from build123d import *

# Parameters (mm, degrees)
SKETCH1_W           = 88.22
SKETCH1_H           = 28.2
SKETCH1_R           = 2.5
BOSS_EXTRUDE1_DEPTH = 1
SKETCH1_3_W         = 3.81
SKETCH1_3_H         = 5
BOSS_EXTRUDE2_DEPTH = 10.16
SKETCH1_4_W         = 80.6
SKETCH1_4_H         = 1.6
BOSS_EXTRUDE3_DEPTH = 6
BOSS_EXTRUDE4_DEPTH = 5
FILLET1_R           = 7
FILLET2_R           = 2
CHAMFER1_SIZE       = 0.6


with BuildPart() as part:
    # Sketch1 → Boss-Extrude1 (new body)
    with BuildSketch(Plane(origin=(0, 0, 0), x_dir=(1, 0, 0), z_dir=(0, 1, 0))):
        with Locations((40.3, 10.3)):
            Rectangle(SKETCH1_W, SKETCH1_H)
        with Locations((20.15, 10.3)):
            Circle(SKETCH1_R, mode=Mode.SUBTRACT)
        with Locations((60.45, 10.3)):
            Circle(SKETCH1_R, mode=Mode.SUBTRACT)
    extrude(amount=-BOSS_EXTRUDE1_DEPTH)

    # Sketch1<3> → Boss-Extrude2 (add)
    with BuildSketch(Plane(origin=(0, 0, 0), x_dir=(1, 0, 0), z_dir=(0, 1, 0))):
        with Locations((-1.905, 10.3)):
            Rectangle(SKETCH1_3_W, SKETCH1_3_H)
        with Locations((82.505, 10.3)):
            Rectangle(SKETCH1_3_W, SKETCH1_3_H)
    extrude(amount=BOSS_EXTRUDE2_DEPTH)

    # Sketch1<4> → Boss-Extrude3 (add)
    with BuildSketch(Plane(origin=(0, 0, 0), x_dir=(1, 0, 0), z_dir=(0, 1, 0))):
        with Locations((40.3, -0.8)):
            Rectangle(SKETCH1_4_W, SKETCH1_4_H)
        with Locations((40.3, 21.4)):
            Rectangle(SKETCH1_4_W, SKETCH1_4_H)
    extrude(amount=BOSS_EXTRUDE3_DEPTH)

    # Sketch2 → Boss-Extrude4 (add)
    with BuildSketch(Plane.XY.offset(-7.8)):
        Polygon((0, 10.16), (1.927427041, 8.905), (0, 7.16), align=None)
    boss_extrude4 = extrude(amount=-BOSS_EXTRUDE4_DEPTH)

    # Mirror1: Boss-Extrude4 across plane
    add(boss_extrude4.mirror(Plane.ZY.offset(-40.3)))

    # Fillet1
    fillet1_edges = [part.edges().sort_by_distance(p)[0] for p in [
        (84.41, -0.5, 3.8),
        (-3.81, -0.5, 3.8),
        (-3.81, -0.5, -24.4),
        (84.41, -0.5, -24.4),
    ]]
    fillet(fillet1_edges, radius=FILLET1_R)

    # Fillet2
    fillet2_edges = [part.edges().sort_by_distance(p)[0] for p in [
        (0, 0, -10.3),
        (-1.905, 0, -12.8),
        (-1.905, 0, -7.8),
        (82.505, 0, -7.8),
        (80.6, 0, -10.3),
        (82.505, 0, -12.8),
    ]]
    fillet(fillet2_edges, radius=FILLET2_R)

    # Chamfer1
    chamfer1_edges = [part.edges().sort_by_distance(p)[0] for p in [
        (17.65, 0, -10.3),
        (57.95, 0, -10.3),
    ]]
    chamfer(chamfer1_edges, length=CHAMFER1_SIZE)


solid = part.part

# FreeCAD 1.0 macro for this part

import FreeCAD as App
import Part
import Sketcher
from FreeCAD import Vector
Q = App.Units.Quantity


def edges_at(feature, points):
    """Names of the edges that pass closest to the given points."""
    edges = feature.Shape.Edges
    near = lambda p: min(range(len(edges)), key=lambda i: edges[i].distToShape(Part.Vertex(*p))[0])
    return sorted({f"Edge{near(p) + 1}" for p in points})

doc = App.newDocument("Part")
params = doc.addObject("Spreadsheet::Sheet", "Params")
for row, (alias, value) in enumerate([
    ("sketch1_diameter", "5 mm"),
    ("sketch1_height", "28.2 mm"),
    ("sketch1_width", "88.22 mm"),
    ("pad1_length", "1 mm"),
    ("sketch2_height", "5 mm"),
    ("sketch2_width", "3.81 mm"),
    ("pad2_length", "10.16 mm"),
    ("sketch3_width", "80.6 mm"),
    ("sketch3_height", "1.6 mm"),
    ("pad3_length", "6 mm"),
    ("sketch4_height", "3 mm"),
    ("sketch4_length", "2.3 mm"),
    ("sketch4_length2", "2.6 mm"),
    ("pad4_length", "5 mm"),
    ("fillet_radius", "7 mm"),
    ("fillet2_radius", "2 mm"),
    ("chamfer_size", "0.6 mm"),
], start=1):
    params.set(f"A{row}", alias)
    params.set(f"B{row}", "=" + value)
    params.setAlias(f"B{row}", alias)

body = doc.addObject("PartDesign::Body", "Body")

sketch1 = body.newObject("Sketcher::SketchObject", "Sketch")
sketch1.AttachmentSupport = (doc.getObject("XZ_Plane"), [""])
sketch1.MapMode = "FlatFace"
sketch1.addGeometry(Part.LineSegment(Vector(-3.8, -24.4, 0), Vector(-3.8, 3.8, 0)), False)
sketch1.addGeometry(Part.LineSegment(Vector(-3.8, 3.8, 0), Vector(84.4, 3.8, 0)), False)
sketch1.addGeometry(Part.LineSegment(Vector(84.4, 3.8, 0), Vector(84.4, -24.4, 0)), False)
sketch1.addGeometry(Part.LineSegment(Vector(84.4, -24.4, 0), Vector(-3.8, -24.4, 0)), False)
sketch1.addGeometry(Part.Circle(Vector(20.1, -10.3, 0), Vector(0, 0, 1), 2.5), False)
sketch1.addGeometry(Part.Circle(Vector(60.5, -10.3, 0), Vector(0, 0, 1), 2.5), False)
sketch1.addConstraint(Sketcher.Constraint("Coincident", 0, 2, 1, 1))
sketch1.addConstraint(Sketcher.Constraint("Coincident", 1, 2, 2, 1))
sketch1.addConstraint(Sketcher.Constraint("Coincident", 2, 2, 3, 1))
sketch1.addConstraint(Sketcher.Constraint("Coincident", 3, 2, 0, 1))
sketch1.addConstraint(Sketcher.Constraint("Vertical", 0))
sketch1.addConstraint(Sketcher.Constraint("Horizontal", 1))
sketch1.addConstraint(Sketcher.Constraint("Vertical", 2))
sketch1.addConstraint(Sketcher.Constraint("Horizontal", 3))
sketch1.addConstraint(Sketcher.Constraint("Equal", 4, 5))
sketch1.addConstraint(Sketcher.Constraint("Horizontal", 4, 3, 5, 3))
sketch1.addConstraint(Sketcher.Constraint("Diameter", 4, Q("5 mm")))
sketch1.addConstraint(Sketcher.Constraint("DistanceY", 0, 1, 0, 2, Q("28.2 mm")))
sketch1.addConstraint(Sketcher.Constraint("DistanceX", 1, 1, 1, 2, Q("88.22 mm")))
sketch1.addConstraint(Sketcher.Constraint("DistanceY", 4, 3, -1, 1, Q("10.3 mm")))
sketch1.addConstraint(Sketcher.Constraint("DistanceY", -1, 1, 0, 2, Q("3.8 mm")))
sketch1.addConstraint(Sketcher.Constraint("DistanceX", 4, 3, 5, 3, Q("40.3 mm")))
sketch1.addConstraint(Sketcher.Constraint("DistanceX", -1, 1, 4, 3, Q("20.15 mm")))
sketch1.addConstraint(Sketcher.Constraint("DistanceX", 0, 2, -1, 1, Q("3.81 mm")))
sketch1.setExpression("Constraints[10]", "Params.sketch1_diameter")
sketch1.setExpression("Constraints[11]", "Params.sketch1_height")
sketch1.setExpression("Constraints[12]", "Params.sketch1_width")
pad1 = body.newObject("PartDesign::Pad", "Pad")
pad1.Profile = sketch1
pad1.setExpression("Length", "Params.pad1_length")

sketch2 = body.newObject("Sketcher::SketchObject", "Sketch001")
sketch2.AttachmentSupport = (doc.getObject("XZ_Plane"), [""])
sketch2.MapMode = "FlatFace"
sketch2.addGeometry(Part.LineSegment(Vector(-3.8, -12.8, 0), Vector(-3.8, -7.8, 0)), False)
sketch2.addGeometry(Part.LineSegment(Vector(-3.8, -7.8, 0), Vector(0, -7.8, 0)), False)
sketch2.addGeometry(Part.LineSegment(Vector(0, -7.8, 0), Vector(0, -12.8, 0)), False)
sketch2.addGeometry(Part.LineSegment(Vector(0, -12.8, 0), Vector(-3.8, -12.8, 0)), False)
sketch2.addGeometry(Part.LineSegment(Vector(80.6, -12.8, 0), Vector(80.6, -7.8, 0)), False)
sketch2.addGeometry(Part.LineSegment(Vector(80.6, -7.8, 0), Vector(84.4, -7.8, 0)), False)
sketch2.addGeometry(Part.LineSegment(Vector(84.4, -7.8, 0), Vector(84.4, -12.8, 0)), False)
sketch2.addGeometry(Part.LineSegment(Vector(84.4, -12.8, 0), Vector(80.6, -12.8, 0)), False)
sketch2.addConstraint(Sketcher.Constraint("Coincident", 0, 2, 1, 1))
sketch2.addConstraint(Sketcher.Constraint("Coincident", 1, 2, 2, 1))
sketch2.addConstraint(Sketcher.Constraint("Coincident", 2, 2, 3, 1))
sketch2.addConstraint(Sketcher.Constraint("Coincident", 3, 2, 0, 1))
sketch2.addConstraint(Sketcher.Constraint("Coincident", 4, 2, 5, 1))
sketch2.addConstraint(Sketcher.Constraint("Coincident", 5, 2, 6, 1))
sketch2.addConstraint(Sketcher.Constraint("Coincident", 6, 2, 7, 1))
sketch2.addConstraint(Sketcher.Constraint("Coincident", 7, 2, 4, 1))
sketch2.addConstraint(Sketcher.Constraint("Vertical", 0))
sketch2.addConstraint(Sketcher.Constraint("Horizontal", 1))
sketch2.addConstraint(Sketcher.Constraint("Vertical", 2))
sketch2.addConstraint(Sketcher.Constraint("Horizontal", 3))
sketch2.addConstraint(Sketcher.Constraint("Vertical", 4))
sketch2.addConstraint(Sketcher.Constraint("Horizontal", 5))
sketch2.addConstraint(Sketcher.Constraint("Vertical", 6))
sketch2.addConstraint(Sketcher.Constraint("Horizontal", 7))
sketch2.addConstraint(Sketcher.Constraint("PointOnObject", 1, 2, -2))
sketch2.addConstraint(Sketcher.Constraint("Horizontal", 1, 2, 4, 2))
sketch2.addConstraint(Sketcher.Constraint("Horizontal", 3, 2, 6, 2))
sketch2.addConstraint(Sketcher.Constraint("Equal", 3, 5))
sketch2.addConstraint(Sketcher.Constraint("DistanceY", 0, 1, 0, 2, Q("5 mm")))
sketch2.addConstraint(Sketcher.Constraint("DistanceX", 1, 1, 1, 2, Q("3.81 mm")))
sketch2.addConstraint(Sketcher.Constraint("DistanceY", 0, 2, -1, 1, Q("7.8 mm")))
sketch2.addConstraint(Sketcher.Constraint("DistanceX", -1, 1, 4, 2, Q("80.6 mm")))
sketch2.setExpression("Constraints[20]", "Params.sketch2_height")
sketch2.setExpression("Constraints[21]", "Params.sketch2_width")
pad2 = body.newObject("PartDesign::Pad", "Pad001")
pad2.Profile = sketch2
pad2.setExpression("Length", "Params.pad2_length")
pad2.Reversed = True

sketch3 = body.newObject("Sketcher::SketchObject", "Sketch002")
sketch3.AttachmentSupport = (doc.getObject("XZ_Plane"), [""])
sketch3.MapMode = "FlatFace"
sketch3.addGeometry(Part.LineSegment(Vector(0, 0, 0), Vector(0, 1.6, 0)), False)
sketch3.addGeometry(Part.LineSegment(Vector(0, 1.6, 0), Vector(80.6, 1.6, 0)), False)
sketch3.addGeometry(Part.LineSegment(Vector(80.6, 1.6, 0), Vector(80.6, 0, 0)), False)
sketch3.addGeometry(Part.LineSegment(Vector(80.6, 0, 0), Vector(0, 0, 0)), False)
sketch3.addGeometry(Part.LineSegment(Vector(0, -22.2, 0), Vector(0, -20.6, 0)), False)
sketch3.addGeometry(Part.LineSegment(Vector(0, -20.6, 0), Vector(80.6, -20.6, 0)), False)
sketch3.addGeometry(Part.LineSegment(Vector(80.6, -20.6, 0), Vector(80.6, -22.2, 0)), False)
sketch3.addGeometry(Part.LineSegment(Vector(80.6, -22.2, 0), Vector(0, -22.2, 0)), False)
sketch3.addConstraint(Sketcher.Constraint("Coincident", 0, 2, 1, 1))
sketch3.addConstraint(Sketcher.Constraint("Coincident", 1, 2, 2, 1))
sketch3.addConstraint(Sketcher.Constraint("Coincident", 2, 2, 3, 1))
sketch3.addConstraint(Sketcher.Constraint("Coincident", 3, 2, 0, 1))
sketch3.addConstraint(Sketcher.Constraint("Coincident", 4, 2, 5, 1))
sketch3.addConstraint(Sketcher.Constraint("Coincident", 5, 2, 6, 1))
sketch3.addConstraint(Sketcher.Constraint("Coincident", 6, 2, 7, 1))
sketch3.addConstraint(Sketcher.Constraint("Coincident", 7, 2, 4, 1))
sketch3.addConstraint(Sketcher.Constraint("Vertical", 0))
sketch3.addConstraint(Sketcher.Constraint("Horizontal", 1))
sketch3.addConstraint(Sketcher.Constraint("Vertical", 2))
sketch3.addConstraint(Sketcher.Constraint("Horizontal", 3))
sketch3.addConstraint(Sketcher.Constraint("Vertical", 4))
sketch3.addConstraint(Sketcher.Constraint("Horizontal", 5))
sketch3.addConstraint(Sketcher.Constraint("Vertical", 6))
sketch3.addConstraint(Sketcher.Constraint("Horizontal", 7))
sketch3.addConstraint(Sketcher.Constraint("Coincident", 3, 2, -1, 1))
sketch3.addConstraint(Sketcher.Constraint("PointOnObject", 4, 2, -2))
sketch3.addConstraint(Sketcher.Constraint("Vertical", 2, 2, 5, 2))
sketch3.addConstraint(Sketcher.Constraint("Equal", 2, 4))
sketch3.addConstraint(Sketcher.Constraint("DistanceX", 1, 1, 1, 2, Q("80.6 mm")))
sketch3.addConstraint(Sketcher.Constraint("DistanceY", 0, 1, 0, 2, Q("1.6 mm")))
sketch3.addConstraint(Sketcher.Constraint("DistanceY", 4, 2, -1, 1, Q("20.6 mm")))
sketch3.setExpression("Constraints[20]", "Params.sketch3_width")
sketch3.setExpression("Constraints[21]", "Params.sketch3_height")
pad3 = body.newObject("PartDesign::Pad", "Pad002")
pad3.Profile = sketch3
pad3.setExpression("Length", "Params.pad3_length")
pad3.Reversed = True

sketch4 = body.newObject("Sketcher::SketchObject", "Sketch003")
sketch4.AttachmentSupport = (doc.getObject("XY_Plane"), [""])
sketch4.MapMode = "FlatFace"
sketch4.AttachmentOffset = App.Placement(Vector(0, 0, -7.8), App.Rotation())
sketch4.addGeometry(Part.LineSegment(Vector(1.9, 8.9, 0), Vector(0, 10.2, 0)), False)
sketch4.addGeometry(Part.LineSegment(Vector(0, 10.2, 0), Vector(0, 7.2, 0)), False)
sketch4.addGeometry(Part.LineSegment(Vector(0, 7.2, 0), Vector(1.9, 8.9, 0)), False)
sketch4.addConstraint(Sketcher.Constraint("Coincident", 0, 2, 1, 1))
sketch4.addConstraint(Sketcher.Constraint("Coincident", 1, 2, 2, 1))
sketch4.addConstraint(Sketcher.Constraint("Coincident", 2, 2, 0, 1))
sketch4.addConstraint(Sketcher.Constraint("Vertical", 1))
sketch4.addConstraint(Sketcher.Constraint("PointOnObject", 0, 2, -2))
sketch4.addConstraint(Sketcher.Constraint("DistanceY", 1, 2, 1, 1, Q("3 mm")))
sketch4.addConstraint(Sketcher.Constraint("Distance", 0, Q("2.3 mm")))
sketch4.addConstraint(Sketcher.Constraint("Distance", 2, Q("2.6 mm")))
sketch4.addConstraint(Sketcher.Constraint("DistanceY", -1, 1, 0, 2, Q("10.16 mm")))
sketch4.setExpression("Constraints[5]", "Params.sketch4_height")
sketch4.setExpression("Constraints[6]", "Params.sketch4_length")
sketch4.setExpression("Constraints[7]", "Params.sketch4_length2")
pad4 = body.newObject("PartDesign::Pad", "Pad003")
pad4.Profile = sketch4
pad4.setExpression("Length", "Params.pad4_length")
pad4.Reversed = True
doc.recompute()

datumplane = body.newObject("PartDesign::Plane", "DatumPlane")
datumplane.AttachmentSupport = (doc.getObject("YZ_Plane"), [""])
datumplane.MapMode = "FlatFace"
datumplane.AttachmentOffset = App.Placement(Vector(0, 0, 40.3), App.Rotation())
mirrored = body.newObject("PartDesign::Mirrored", "Mirrored")
mirrored.Originals = [pad4]
mirrored.MirrorPlane = (datumplane, [""])
body.Tip = mirrored
doc.recompute()

fillet = body.newObject("PartDesign::Fillet", "Fillet")
fillet.Base = (mirrored, edges_at(mirrored, [
    (84.41, -0.5, 3.8),
    (-3.81, -0.5, 3.8),
    (-3.81, -0.5, -24.4),
    (84.41, -0.5, -24.4),
]))
fillet.setExpression("Radius", "Params.fillet_radius")
doc.recompute()

fillet2 = body.newObject("PartDesign::Fillet", "Fillet001")
fillet2.Base = (fillet, edges_at(fillet, [
    (0, 0, -10.3),
    (-1.905, 0, -12.8),
    (-1.905, 0, -7.8),
    (82.505, 0, -7.8),
    (80.6, 0, -10.3),
    (82.505, 0, -12.8),
]))
fillet2.setExpression("Radius", "Params.fillet2_radius")
doc.recompute()

chamfer = body.newObject("PartDesign::Chamfer", "Chamfer")
chamfer.Base = (fillet2, edges_at(fillet2, [(17.65, 0, -10.3), (57.95, 0, -10.3)]))
chamfer.setExpression("Size", "Params.chamfer_size")

doc.recompute()
